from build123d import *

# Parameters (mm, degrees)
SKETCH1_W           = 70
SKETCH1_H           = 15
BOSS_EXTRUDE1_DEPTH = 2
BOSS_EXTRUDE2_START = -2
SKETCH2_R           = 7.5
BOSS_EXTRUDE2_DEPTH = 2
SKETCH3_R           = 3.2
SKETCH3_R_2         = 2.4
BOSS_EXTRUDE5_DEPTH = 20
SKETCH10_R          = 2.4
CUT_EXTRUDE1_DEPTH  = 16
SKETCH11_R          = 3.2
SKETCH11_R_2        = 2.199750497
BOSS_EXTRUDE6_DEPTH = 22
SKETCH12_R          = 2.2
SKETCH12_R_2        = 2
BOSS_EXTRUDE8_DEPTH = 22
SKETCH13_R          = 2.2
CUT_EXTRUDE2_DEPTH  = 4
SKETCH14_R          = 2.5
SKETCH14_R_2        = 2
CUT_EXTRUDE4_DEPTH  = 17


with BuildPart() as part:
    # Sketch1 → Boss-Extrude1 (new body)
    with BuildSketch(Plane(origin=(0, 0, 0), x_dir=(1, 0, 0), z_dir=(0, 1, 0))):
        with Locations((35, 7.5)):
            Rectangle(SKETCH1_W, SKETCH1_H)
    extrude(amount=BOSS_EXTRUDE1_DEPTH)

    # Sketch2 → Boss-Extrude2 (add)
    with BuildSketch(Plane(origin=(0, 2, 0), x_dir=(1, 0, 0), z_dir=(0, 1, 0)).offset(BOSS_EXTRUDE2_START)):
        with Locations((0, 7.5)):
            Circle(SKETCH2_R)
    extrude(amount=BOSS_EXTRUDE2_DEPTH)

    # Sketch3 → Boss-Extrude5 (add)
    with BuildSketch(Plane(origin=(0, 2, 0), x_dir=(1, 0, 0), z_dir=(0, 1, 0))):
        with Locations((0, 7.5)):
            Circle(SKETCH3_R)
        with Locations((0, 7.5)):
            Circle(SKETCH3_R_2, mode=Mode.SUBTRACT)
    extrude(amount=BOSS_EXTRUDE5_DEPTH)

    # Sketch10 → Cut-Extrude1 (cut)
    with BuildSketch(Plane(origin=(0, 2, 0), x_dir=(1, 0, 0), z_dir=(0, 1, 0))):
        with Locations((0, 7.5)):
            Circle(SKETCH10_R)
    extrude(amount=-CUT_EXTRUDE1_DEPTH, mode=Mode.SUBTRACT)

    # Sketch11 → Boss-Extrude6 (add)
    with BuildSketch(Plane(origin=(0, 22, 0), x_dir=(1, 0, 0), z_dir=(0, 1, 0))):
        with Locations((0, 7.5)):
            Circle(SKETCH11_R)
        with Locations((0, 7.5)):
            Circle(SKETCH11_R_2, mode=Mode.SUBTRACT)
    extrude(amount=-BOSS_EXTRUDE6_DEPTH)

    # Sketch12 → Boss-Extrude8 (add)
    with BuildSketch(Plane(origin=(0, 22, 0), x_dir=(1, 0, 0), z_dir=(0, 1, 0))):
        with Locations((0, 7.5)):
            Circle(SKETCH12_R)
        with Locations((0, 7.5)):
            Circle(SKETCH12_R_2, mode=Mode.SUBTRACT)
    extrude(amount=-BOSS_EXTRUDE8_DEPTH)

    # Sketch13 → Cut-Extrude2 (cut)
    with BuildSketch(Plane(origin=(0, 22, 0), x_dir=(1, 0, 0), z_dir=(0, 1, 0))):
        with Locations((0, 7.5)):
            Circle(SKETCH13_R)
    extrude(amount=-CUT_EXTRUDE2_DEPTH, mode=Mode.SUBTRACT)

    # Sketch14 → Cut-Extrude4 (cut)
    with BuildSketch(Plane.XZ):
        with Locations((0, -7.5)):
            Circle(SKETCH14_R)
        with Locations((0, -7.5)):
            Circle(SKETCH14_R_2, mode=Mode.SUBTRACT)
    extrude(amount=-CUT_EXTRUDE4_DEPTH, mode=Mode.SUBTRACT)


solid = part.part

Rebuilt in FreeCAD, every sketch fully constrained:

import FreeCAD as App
import Part
import Sketcher
Q = App.Units.Quantity

doc = App.newDocument("Part")
body = doc.addObject("PartDesign::Body", "Body")

sketch1 = body.newObject("Sketcher::SketchObject", "Sketch")
sketch1.AttachmentSupport = (doc.getObject("XZ_Plane"), [""])
sketch1.MapMode = "FlatFace"
sketch1.addGeometry([
    Part.LineSegment(App.Vector(0, -15, 0), App.Vector(0, 0, 0)),
    Part.LineSegment(App.Vector(0, 0, 0), App.Vector(70, 0, 0)),
    Part.LineSegment(App.Vector(70, 0, 0), App.Vector(70, -15, 0)),
    Part.LineSegment(App.Vector(70, -15, 0), App.Vector(0, -15, 0)),
], False)
sketch1.addConstraint([
    Sketcher.Constraint("Coincident", 0, 2, 1, 1),
    Sketcher.Constraint("Coincident", 1, 2, 2, 1),
    Sketcher.Constraint("Coincident", 2, 2, 3, 1),
    Sketcher.Constraint("Coincident", 3, 2, 0, 1),
    Sketcher.Constraint("Vertical", 0),
    Sketcher.Constraint("Horizontal", 1),
    Sketcher.Constraint("Vertical", 2),
    Sketcher.Constraint("Horizontal", 3),
    Sketcher.Constraint("Coincident", 0, 2, -1, 1),
    Sketcher.Constraint("DistanceX", 1, 1, 1, 2, Q("70 mm")),
    Sketcher.Constraint("DistanceY", 0, 1, 0, 2, Q("15 mm")),
])
pad1 = body.newObject("PartDesign::Pad", "Pad")
pad1.Profile = sketch1
pad1.Length = 2
pad1.Reversed = True

sketch2 = body.newObject("Sketcher::SketchObject", "Sketch001")
sketch2.AttachmentSupport = (doc.getObject("XZ_Plane"), [""])
sketch2.MapMode = "FlatFace"
sketch2.addGeometry(Part.Circle(App.Vector(0, -7.5, 0), App.Vector(0, 0, 1), 7.5), False)
sketch2.addConstraint([
    Sketcher.Constraint("PointOnObject", 0, 3, -2),
    Sketcher.Constraint("Diameter", 0, Q("15 mm")),
    Sketcher.Constraint("DistanceY", 0, 3, -1, 1, Q("7.5 mm")),
])
pad2 = body.newObject("PartDesign::Pad", "Pad001")
pad2.Profile = sketch2
pad2.Length = 2
pad2.Reversed = True

sketch3 = body.newObject("Sketcher::SketchObject", "Sketch002")
sketch3.AttachmentSupport = (doc.getObject("XZ_Plane"), [""])
sketch3.MapMode = "FlatFace"
sketch3.AttachmentOffset = App.Placement(App.Vector(0, 0, -2), App.Rotation())
sketch3.addGeometry([
    Part.Circle(App.Vector(0, -7.5, 0), App.Vector(0, 0, 1), 3.2),
    Part.Circle(App.Vector(0, -7.5, 0), App.Vector(0, 0, 1), 2.4),
], False)
sketch3.addConstraint([
    Sketcher.Constraint("Coincident", 1, 3, 0, 3),
    Sketcher.Constraint("PointOnObject", 0, 3, -2),
    Sketcher.Constraint("Diameter", 0, Q("6.4 mm")),
    Sketcher.Constraint("Diameter", 1, Q("4.8 mm")),
    Sketcher.Constraint("DistanceY", 0, 3, -1, 1, Q("7.5 mm")),
])
pad3 = body.newObject("PartDesign::Pad", "Pad002")
pad3.Profile = sketch3
pad3.Length = 20
pad3.Reversed = True

sketch4 = body.newObject("Sketcher::SketchObject", "Sketch003")
sketch4.AttachmentSupport = (doc.getObject("XZ_Plane"), [""])
sketch4.MapMode = "FlatFace"
sketch4.AttachmentOffset = App.Placement(App.Vector(0, 0, -2), App.Rotation())
sketch4.addGeometry(Part.Circle(App.Vector(0, -7.5, 0), App.Vector(0, 0, 1), 2.4), False)
sketch4.addConstraint([
    Sketcher.Constraint("PointOnObject", 0, 3, -2),
    Sketcher.Constraint("Diameter", 0, Q("4.8 mm")),
    Sketcher.Constraint("DistanceY", 0, 3, -1, 1, Q("7.5 mm")),
])
pocket1 = body.newObject("PartDesign::Pocket", "Pocket")
pocket1.Profile = sketch4
pocket1.Length = 16
pocket1.Reversed = True

sketch5 = body.newObject("Sketcher::SketchObject", "Sketch004")
sketch5.AttachmentSupport = (doc.getObject("XZ_Plane"), [""])
sketch5.MapMode = "FlatFace"
sketch5.AttachmentOffset = App.Placement(App.Vector(0, 0, -22), App.Rotation())
sketch5.addGeometry([
    Part.Circle(App.Vector(0, -7.5, 0), App.Vector(0, 0, 1), 3.2),
    Part.Circle(App.Vector(0, -7.5, 0), App.Vector(0, 0, 1), 2.19975),
], False)
sketch5.addConstraint([
    Sketcher.Constraint("Coincident", 1, 3, 0, 3),
    Sketcher.Constraint("PointOnObject", 0, 3, -2),
    Sketcher.Constraint("Diameter", 0, Q("6.4 mm")),
    Sketcher.Constraint("Diameter", 1, Q("4.399501 mm")),
    Sketcher.Constraint("DistanceY", 0, 3, -1, 1, Q("7.5 mm")),
])
pad4 = body.newObject("PartDesign::Pad", "Pad003")
pad4.Profile = sketch5
pad4.Length = 22

sketch6 = body.newObject("Sketcher::SketchObject", "Sketch005")
sketch6.AttachmentSupport = (doc.getObject("XZ_Plane"), [""])
sketch6.MapMode = "FlatFace"
sketch6.AttachmentOffset = App.Placement(App.Vector(0, 0, -22), App.Rotation())
sketch6.addGeometry([
    Part.Circle(App.Vector(0, -7.5, 0), App.Vector(0, 0, 1), 2.2),
    Part.Circle(App.Vector(0, -7.5, 0), App.Vector(0, 0, 1), 2),
], False)
sketch6.addConstraint([
    Sketcher.Constraint("Coincident", 1, 3, 0, 3),
    Sketcher.Constraint("PointOnObject", 0, 3, -2),
    Sketcher.Constraint("Diameter", 1, Q("4 mm")),
    Sketcher.Constraint("Diameter", 0, Q("4.4 mm")),
    Sketcher.Constraint("DistanceY", 0, 3, -1, 1, Q("7.5 mm")),
])
pad5 = body.newObject("PartDesign::Pad", "Pad004")
pad5.Profile = sketch6
pad5.Length = 22

sketch7 = body.newObject("Sketcher::SketchObject", "Sketch006")
sketch7.AttachmentSupport = (doc.getObject("XZ_Plane"), [""])
sketch7.MapMode = "FlatFace"
sketch7.AttachmentOffset = App.Placement(App.Vector(0, 0, -22), App.Rotation())
sketch7.addGeometry(Part.Circle(App.Vector(0, -7.5, 0), App.Vector(0, 0, 1), 2.2), False)
sketch7.addConstraint([
    Sketcher.Constraint("PointOnObject", 0, 3, -2),
    Sketcher.Constraint("Diameter", 0, Q("4.4 mm")),
    Sketcher.Constraint("DistanceY", 0, 3, -1, 1, Q("7.5 mm")),
])
pocket2 = body.newObject("PartDesign::Pocket", "Pocket001")
pocket2.Profile = sketch7
pocket2.Length = 4
pocket2.Reversed = True

sketch8 = body.newObject("Sketcher::SketchObject", "Sketch007")
sketch8.AttachmentSupport = (doc.getObject("XZ_Plane"), [""])
sketch8.MapMode = "FlatFace"
sketch8.addGeometry([
    Part.Circle(App.Vector(0, -7.5, 0), App.Vector(0, 0, 1), 2.5),
    Part.Circle(App.Vector(0, -7.5, 0), App.Vector(0, 0, 1), 2),
], False)
sketch8.addConstraint([
    Sketcher.Constraint("Coincident", 1, 3, 0, 3),
    Sketcher.Constraint("PointOnObject", 0, 3, -2),
    Sketcher.Constraint("Diameter", 0, Q("5 mm")),
    Sketcher.Constraint("Diameter", 1, Q("4 mm")),
    Sketcher.Constraint("DistanceY", 0, 3, -1, 1, Q("7.5 mm")),
])
pocket3 = body.newObject("PartDesign::Pocket", "Pocket002")
pocket3.Profile = sketch8
pocket3.Length = 17

doc.recompute()
